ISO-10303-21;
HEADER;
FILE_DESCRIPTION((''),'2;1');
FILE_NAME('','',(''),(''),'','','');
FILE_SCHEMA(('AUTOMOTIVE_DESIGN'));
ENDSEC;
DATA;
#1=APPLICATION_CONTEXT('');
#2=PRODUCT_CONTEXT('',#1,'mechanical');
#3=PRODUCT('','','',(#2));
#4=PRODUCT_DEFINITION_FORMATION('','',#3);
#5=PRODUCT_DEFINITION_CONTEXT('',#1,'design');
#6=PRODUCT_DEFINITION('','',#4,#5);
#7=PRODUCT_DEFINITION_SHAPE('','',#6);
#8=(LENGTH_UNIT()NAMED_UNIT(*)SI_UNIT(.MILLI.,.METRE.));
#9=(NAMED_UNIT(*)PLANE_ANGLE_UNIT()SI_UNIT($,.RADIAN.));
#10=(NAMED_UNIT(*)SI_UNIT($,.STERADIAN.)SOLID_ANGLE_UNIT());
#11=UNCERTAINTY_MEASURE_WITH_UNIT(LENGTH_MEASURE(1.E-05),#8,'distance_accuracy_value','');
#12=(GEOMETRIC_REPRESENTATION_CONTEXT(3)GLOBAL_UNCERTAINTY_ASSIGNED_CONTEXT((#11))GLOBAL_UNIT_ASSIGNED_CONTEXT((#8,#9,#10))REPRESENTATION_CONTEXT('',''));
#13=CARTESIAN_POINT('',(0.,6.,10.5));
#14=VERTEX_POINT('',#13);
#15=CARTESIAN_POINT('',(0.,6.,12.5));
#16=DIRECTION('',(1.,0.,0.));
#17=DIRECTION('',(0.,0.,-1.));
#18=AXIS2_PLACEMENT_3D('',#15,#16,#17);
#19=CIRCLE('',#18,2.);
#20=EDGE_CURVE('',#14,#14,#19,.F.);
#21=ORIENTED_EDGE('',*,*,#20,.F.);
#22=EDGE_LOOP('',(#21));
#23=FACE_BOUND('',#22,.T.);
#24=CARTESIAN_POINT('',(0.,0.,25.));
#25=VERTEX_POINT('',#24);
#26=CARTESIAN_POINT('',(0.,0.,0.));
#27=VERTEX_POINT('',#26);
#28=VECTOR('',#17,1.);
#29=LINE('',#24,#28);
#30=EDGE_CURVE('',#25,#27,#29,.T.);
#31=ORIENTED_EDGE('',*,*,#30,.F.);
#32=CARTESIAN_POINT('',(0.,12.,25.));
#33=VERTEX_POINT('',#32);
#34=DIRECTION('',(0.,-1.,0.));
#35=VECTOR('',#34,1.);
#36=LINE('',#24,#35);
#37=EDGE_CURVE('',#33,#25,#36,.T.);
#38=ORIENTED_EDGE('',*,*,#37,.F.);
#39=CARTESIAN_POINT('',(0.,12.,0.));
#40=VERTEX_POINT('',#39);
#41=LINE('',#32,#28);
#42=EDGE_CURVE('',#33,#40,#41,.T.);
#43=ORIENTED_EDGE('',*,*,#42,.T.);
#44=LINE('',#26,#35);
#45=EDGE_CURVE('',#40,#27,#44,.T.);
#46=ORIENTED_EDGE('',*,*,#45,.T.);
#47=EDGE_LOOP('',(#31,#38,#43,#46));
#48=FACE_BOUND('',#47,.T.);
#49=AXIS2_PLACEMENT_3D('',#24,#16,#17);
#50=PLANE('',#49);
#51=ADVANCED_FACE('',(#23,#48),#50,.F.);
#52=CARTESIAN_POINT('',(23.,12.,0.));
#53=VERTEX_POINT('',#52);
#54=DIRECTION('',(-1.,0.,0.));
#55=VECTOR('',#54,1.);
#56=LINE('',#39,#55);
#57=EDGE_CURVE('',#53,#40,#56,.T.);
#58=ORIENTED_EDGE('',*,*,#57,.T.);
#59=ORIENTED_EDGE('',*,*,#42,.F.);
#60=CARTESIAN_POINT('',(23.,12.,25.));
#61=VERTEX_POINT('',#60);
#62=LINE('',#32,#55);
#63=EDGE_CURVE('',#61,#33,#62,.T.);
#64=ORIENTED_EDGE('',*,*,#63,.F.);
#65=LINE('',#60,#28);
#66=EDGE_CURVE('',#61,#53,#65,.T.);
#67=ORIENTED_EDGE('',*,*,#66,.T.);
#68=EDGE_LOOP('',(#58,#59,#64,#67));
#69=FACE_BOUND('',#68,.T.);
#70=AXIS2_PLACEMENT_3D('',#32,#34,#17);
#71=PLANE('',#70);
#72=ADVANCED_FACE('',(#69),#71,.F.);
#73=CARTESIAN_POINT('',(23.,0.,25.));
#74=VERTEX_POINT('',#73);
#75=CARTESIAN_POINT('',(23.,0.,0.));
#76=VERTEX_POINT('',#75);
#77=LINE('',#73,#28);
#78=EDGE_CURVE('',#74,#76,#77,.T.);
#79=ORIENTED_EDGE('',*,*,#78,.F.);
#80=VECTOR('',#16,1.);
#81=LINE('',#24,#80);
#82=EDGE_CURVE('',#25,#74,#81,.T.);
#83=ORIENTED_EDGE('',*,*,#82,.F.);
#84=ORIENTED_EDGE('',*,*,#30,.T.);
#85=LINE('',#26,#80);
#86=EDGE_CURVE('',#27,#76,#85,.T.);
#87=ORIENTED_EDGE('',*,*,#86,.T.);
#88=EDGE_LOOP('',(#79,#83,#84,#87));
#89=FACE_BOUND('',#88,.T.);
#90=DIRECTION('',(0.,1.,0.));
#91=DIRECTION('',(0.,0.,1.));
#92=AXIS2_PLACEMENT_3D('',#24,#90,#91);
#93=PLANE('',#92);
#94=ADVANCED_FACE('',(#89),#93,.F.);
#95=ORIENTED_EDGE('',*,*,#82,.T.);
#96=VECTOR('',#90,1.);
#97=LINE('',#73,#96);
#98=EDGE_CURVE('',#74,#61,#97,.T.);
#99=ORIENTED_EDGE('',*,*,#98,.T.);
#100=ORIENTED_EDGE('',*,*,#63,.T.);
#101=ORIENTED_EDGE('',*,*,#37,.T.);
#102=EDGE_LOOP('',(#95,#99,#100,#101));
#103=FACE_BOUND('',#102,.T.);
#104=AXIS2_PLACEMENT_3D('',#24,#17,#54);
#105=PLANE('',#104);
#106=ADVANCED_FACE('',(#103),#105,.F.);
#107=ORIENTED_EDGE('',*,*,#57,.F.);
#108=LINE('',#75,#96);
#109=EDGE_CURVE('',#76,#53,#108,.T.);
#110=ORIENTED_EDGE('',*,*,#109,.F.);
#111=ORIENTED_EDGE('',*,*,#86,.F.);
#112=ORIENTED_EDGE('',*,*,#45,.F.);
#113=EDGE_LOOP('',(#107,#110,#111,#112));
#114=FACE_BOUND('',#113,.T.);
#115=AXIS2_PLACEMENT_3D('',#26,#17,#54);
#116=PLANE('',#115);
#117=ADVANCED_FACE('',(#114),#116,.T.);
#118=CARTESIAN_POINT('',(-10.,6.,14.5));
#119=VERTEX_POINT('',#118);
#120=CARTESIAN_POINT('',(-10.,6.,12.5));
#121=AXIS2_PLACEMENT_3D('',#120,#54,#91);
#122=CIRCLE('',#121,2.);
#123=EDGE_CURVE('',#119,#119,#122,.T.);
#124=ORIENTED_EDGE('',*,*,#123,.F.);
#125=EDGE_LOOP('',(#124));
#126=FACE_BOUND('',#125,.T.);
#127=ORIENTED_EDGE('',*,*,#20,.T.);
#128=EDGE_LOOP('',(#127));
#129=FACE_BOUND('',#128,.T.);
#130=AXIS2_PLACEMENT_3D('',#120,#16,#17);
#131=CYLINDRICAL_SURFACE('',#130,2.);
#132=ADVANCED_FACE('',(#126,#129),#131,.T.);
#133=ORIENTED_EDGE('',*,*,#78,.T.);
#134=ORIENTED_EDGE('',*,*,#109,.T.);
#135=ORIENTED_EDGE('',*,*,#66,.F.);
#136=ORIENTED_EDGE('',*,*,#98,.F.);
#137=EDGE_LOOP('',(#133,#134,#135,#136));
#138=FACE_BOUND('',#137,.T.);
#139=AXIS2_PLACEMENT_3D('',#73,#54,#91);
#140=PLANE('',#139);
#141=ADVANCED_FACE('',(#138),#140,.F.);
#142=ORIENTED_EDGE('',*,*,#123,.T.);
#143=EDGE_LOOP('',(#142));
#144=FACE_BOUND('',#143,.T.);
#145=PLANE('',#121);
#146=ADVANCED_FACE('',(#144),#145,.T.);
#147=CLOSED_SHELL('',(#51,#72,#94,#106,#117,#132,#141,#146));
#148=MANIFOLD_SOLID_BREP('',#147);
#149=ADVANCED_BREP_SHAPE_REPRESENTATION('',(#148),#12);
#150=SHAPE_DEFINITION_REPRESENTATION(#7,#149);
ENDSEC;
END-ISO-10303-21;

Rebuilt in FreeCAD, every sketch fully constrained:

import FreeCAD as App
import Part
import Sketcher
from FreeCAD import Vector

doc = App.newDocument("Part")
body = doc.addObject("PartDesign::Body", "Body")

sketch1 = body.newObject("Sketcher::SketchObject", "Sketch")
sketch1.AttachmentSupport = (doc.getObject("XY_Plane"), [""])
sketch1.MapMode = "FlatFace"
sketch1.addGeometry(Part.LineSegment(Vector(0, 12, 0), Vector(0, 0, 0)), False)
sketch1.addGeometry(Part.LineSegment(Vector(0, 0, 0), Vector(23, 0, 0)), False)
sketch1.addGeometry(Part.LineSegment(Vector(23, 0, 0), Vector(23, 12, 0)), False)
sketch1.addGeometry(Part.LineSegment(Vector(23, 12, 0), Vector(0, 12, 0)), False)
sketch1.addConstraint(Sketcher.Constraint("Coincident", 0, 2, 1, 1))
sketch1.addConstraint(Sketcher.Constraint("Coincident", 1, 2, 2, 1))
sketch1.addConstraint(Sketcher.Constraint("Coincident", 2, 2, 3, 1))
sketch1.addConstraint(Sketcher.Constraint("Coincident", 3, 2, 0, 1))
sketch1.addConstraint(Sketcher.Constraint("Vertical", 0))
sketch1.addConstraint(Sketcher.Constraint("Horizontal", 1))
sketch1.addConstraint(Sketcher.Constraint("Vertical", 2))
sketch1.addConstraint(Sketcher.Constraint("Horizontal", 3))
sketch1.addConstraint(Sketcher.Constraint("Coincident", 0, 2, -1, 1))
sketch1.addConstraint(Sketcher.Constraint("DistanceX", 1, 1, 1, 2, 23.0))
sketch1.addConstraint(Sketcher.Constraint("DistanceY", 0, 2, 0, 1, 12.0))
pad1 = body.newObject("PartDesign::Pad", "Pad")
pad1.Profile = sketch1
pad1.Length = 25

sketch2 = body.newObject("Sketcher::SketchObject", "Sketch001")
sketch2.AttachmentSupport = (doc.getObject("YZ_Plane"), [""])
sketch2.MapMode = "FlatFace"
sketch2.addGeometry(Part.Circle(Vector(6, 12.5, 0), Vector(0, 0, 1), 2), False)
sketch2.addConstraint(Sketcher.Constraint("Diameter", 0, 4.0))
sketch2.addConstraint(Sketcher.Constraint("DistanceX", -1, 1, 0, 3, 6.0))
sketch2.addConstraint(Sketcher.Constraint("DistanceY", -1, 1, 0, 3, 12.5))
pad2 = body.newObject("PartDesign::Pad", "Pad001")
pad2.Profile = sketch2
pad2.Length = 10
pad2.Reversed = True

doc.recompute()
